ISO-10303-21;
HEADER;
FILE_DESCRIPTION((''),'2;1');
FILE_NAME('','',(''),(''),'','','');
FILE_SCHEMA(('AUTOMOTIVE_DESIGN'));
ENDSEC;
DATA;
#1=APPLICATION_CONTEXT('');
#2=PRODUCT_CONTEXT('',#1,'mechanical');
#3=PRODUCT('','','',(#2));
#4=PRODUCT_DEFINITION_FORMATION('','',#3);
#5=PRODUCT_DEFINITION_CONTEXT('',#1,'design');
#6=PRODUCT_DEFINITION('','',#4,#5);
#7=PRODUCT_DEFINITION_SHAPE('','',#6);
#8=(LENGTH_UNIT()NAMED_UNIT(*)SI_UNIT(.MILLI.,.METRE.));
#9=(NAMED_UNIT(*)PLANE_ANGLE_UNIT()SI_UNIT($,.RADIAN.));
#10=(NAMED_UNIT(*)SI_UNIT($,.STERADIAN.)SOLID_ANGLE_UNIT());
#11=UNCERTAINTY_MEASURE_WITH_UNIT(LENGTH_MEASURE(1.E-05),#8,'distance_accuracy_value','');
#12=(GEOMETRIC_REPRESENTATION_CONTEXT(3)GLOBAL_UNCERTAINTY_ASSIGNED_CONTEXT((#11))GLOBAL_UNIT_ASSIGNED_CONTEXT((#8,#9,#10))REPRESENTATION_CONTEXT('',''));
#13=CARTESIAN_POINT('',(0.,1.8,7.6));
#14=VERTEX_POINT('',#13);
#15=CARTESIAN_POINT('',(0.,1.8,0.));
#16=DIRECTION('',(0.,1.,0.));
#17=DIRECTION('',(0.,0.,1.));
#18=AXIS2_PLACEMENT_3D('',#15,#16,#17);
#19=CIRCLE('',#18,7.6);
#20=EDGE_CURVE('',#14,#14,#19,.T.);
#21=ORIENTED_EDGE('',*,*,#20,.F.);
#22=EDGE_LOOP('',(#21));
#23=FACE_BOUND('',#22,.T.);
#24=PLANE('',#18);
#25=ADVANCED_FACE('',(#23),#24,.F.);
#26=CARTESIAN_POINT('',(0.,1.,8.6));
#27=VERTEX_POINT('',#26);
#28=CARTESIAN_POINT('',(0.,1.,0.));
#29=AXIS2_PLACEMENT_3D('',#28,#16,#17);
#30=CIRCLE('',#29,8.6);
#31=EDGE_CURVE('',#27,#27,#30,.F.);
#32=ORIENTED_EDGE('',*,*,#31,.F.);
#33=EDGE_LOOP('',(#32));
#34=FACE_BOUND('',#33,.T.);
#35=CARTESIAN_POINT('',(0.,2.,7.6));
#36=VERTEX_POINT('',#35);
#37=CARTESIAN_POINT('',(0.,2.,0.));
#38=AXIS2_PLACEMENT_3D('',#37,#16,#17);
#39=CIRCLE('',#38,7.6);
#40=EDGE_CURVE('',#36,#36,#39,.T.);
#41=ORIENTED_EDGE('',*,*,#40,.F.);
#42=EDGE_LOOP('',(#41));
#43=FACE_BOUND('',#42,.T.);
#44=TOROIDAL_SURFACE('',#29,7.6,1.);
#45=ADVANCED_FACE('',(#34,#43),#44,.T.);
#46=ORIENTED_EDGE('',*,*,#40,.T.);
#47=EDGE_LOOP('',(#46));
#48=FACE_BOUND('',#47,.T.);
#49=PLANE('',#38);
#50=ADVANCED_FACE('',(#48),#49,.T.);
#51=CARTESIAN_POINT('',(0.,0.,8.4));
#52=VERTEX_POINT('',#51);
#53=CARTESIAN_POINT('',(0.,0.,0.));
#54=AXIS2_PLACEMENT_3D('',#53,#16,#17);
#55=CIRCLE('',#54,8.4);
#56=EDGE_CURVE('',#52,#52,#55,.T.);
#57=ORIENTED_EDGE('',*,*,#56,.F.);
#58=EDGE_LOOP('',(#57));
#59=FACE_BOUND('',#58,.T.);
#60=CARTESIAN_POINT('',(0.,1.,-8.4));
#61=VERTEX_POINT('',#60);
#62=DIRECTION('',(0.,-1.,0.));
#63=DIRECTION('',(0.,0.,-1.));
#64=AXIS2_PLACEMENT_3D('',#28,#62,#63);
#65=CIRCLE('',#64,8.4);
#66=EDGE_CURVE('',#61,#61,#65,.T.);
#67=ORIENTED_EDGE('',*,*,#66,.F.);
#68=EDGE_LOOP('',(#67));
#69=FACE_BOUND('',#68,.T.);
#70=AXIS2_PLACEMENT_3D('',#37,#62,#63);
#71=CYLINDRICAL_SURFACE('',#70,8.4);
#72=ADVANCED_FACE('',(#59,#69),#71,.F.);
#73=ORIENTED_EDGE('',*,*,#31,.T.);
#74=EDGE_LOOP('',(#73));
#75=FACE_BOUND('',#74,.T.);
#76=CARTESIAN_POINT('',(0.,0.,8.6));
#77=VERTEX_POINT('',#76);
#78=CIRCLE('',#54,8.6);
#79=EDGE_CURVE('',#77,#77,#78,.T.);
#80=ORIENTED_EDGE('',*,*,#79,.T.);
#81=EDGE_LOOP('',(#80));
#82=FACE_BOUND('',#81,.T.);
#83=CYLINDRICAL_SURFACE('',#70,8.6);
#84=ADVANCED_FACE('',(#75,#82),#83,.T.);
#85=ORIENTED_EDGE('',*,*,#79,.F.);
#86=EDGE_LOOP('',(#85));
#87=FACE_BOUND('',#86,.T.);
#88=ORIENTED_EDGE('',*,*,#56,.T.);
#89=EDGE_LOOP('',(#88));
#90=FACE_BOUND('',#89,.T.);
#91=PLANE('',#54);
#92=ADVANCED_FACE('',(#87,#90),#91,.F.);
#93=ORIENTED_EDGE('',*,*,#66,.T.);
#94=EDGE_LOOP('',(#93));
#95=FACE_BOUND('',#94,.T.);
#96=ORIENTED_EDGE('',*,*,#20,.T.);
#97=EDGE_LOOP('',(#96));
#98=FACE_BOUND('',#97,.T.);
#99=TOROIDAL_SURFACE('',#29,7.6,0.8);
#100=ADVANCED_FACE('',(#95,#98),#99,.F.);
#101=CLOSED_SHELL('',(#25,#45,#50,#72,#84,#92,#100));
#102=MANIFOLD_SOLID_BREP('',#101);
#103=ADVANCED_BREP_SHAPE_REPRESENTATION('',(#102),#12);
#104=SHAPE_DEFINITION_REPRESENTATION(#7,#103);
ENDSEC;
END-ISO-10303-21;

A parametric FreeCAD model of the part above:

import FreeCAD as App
import Part
import Sketcher
from FreeCAD import Vector
Q = App.Units.Quantity


def edges_at(feature, points):
    """Names of the edges that pass closest to the given points."""
    edges = feature.Shape.Edges
    near = lambda p: min(range(len(edges)), key=lambda i: edges[i].distToShape(Part.Vertex(*p))[0])
    return sorted({f"Edge{near(p) + 1}" for p in points})


def faces_at(feature, points):
    """Names of the faces that lie closest to the given points."""
    faces = feature.Shape.Faces
    near = lambda p: min(range(len(faces)), key=lambda i: faces[i].distToShape(Part.Vertex(*p))[0])
    return sorted({f"Face{near(p) + 1}" for p in points})

doc = App.newDocument("Part")
params = doc.addObject("Spreadsheet::Sheet", "Params")
for row, (alias, value) in enumerate([
    ("sketch1_diameter", "17.2 mm"),
    ("pad1_length", "2 mm"),
    ("fillet_radius", "1 mm"),
    ("thickness_wall", "0.2 mm"),
], start=1):
    params.set(f"A{row}", alias)
    params.set(f"B{row}", "=" + value)
    params.setAlias(f"B{row}", alias)

body = doc.addObject("PartDesign::Body", "Body")

# Sketch on XZ plane
sketch1 = body.newObject("Sketcher::SketchObject", "Sketch")
sketch1.AttachmentSupport = (doc.getObject("XZ_Plane"), [""])
sketch1.MapMode = "FlatFace"
sketch1.addGeometry(Part.Circle(Vector(0, 0, 0), Vector(0, 0, 1), 9), False)
sketch1.addConstraint([
    Sketcher.Constraint("Coincident", 0, 3, -1, 1),
    Sketcher.Constraint("Diameter", 0, Q("17.2 mm")),
])
sketch1.setExpression("Constraints[1]", "Params.sketch1_diameter")
pad1 = body.newObject("PartDesign::Pad", "Pad")
pad1.Profile = sketch1
pad1.setExpression("Length", "Params.pad1_length")
pad1.Reversed = True
doc.recompute()

fillet = body.newObject("PartDesign::Fillet", "Fillet")
fillet.Base = (pad1, edges_at(pad1, [(0, 2, -8.6)]))
fillet.setExpression("Radius", "Params.fillet_radius")
doc.recompute()

thickness = body.newObject("PartDesign::Thickness", "Thickness")
thickness.Base = (fillet, faces_at(fillet, [(0, 0, 0)]))
thickness.setExpression("Value", "Params.thickness_wall")
thickness.Reversed = True
thickness.Join = "Intersection"

doc.recompute()
